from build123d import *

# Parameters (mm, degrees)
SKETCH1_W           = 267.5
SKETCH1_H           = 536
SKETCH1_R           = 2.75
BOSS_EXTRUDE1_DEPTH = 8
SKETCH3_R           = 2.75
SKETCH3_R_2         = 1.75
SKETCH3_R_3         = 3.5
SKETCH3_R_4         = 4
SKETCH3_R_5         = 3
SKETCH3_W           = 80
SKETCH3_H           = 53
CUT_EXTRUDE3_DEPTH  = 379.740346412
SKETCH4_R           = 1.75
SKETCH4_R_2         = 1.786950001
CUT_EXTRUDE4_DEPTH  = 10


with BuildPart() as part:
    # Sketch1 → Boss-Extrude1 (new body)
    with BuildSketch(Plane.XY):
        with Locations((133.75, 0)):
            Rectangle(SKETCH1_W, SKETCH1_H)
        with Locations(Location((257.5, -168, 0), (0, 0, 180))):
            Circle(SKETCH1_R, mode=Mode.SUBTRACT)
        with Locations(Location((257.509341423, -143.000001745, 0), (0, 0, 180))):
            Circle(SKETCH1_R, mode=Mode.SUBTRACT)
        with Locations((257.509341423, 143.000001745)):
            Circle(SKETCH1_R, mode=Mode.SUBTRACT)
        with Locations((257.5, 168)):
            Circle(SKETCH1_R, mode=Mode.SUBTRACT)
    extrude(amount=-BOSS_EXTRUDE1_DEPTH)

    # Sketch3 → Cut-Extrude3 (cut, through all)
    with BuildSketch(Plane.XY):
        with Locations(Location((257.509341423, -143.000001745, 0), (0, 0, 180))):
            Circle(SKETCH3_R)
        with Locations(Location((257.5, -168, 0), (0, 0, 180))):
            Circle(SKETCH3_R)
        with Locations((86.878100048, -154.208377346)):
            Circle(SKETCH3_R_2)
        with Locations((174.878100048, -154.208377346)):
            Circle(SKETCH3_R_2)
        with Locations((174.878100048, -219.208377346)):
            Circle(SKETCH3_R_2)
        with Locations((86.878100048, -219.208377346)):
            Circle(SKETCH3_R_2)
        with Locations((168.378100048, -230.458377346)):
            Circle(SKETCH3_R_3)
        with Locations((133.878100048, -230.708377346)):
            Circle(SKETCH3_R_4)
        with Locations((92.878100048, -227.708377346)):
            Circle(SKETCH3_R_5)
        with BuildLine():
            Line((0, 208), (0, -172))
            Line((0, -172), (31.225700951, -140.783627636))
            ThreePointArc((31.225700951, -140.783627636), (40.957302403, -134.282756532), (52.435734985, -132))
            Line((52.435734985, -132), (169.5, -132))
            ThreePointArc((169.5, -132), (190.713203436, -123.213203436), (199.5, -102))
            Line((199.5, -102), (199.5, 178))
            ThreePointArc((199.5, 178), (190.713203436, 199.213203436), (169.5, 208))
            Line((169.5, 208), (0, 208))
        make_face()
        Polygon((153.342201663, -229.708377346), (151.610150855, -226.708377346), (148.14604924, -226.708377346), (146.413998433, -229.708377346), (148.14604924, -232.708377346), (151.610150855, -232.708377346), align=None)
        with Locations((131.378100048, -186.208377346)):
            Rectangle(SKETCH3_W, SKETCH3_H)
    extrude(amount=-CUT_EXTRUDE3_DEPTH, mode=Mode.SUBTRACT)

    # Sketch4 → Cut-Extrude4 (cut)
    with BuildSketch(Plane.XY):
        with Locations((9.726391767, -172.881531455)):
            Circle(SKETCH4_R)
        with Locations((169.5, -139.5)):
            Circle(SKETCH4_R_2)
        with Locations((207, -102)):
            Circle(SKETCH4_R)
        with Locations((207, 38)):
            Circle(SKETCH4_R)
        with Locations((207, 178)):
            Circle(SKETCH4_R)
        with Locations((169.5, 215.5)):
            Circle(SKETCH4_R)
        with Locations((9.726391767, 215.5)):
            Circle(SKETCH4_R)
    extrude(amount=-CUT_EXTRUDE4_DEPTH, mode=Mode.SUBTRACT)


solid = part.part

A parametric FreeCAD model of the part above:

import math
import FreeCAD as App
import Part
import Sketcher
Q = App.Units.Quantity

doc = App.newDocument("Part")
body = doc.addObject("PartDesign::Body", "Body")

# Sketch on XY plane
sketch1 = body.newObject("Sketcher::SketchObject", "Sketch")
sketch1.AttachmentSupport = (doc.getObject("XY_Plane"), [""])
sketch1.MapMode = "FlatFace"
sketch1.addGeometry(Part.LineSegment(App.Vector(0, 268, 0), App.Vector(0, -268, 0)), False)
sketch1.addGeometry(Part.LineSegment(App.Vector(0, -268, 0), App.Vector(267.5, -268, 0)), False)
sketch1.addGeometry(Part.LineSegment(App.Vector(267.5, -268, 0), App.Vector(267.5, 268, 0)), False)
sketch1.addGeometry(Part.LineSegment(App.Vector(267.5, 268, 0), App.Vector(0, 268, 0)), False)
sketch1.addGeometry(Part.Circle(App.Vector(257.5, -168, 0), App.Vector(0, 0, 1), 2.8), False)
sketch1.addGeometry(Part.Circle(App.Vector(257.5, -143, 0), App.Vector(0, 0, 1), 2.8), False)
sketch1.addGeometry(Part.Circle(App.Vector(257.5, 168, 0), App.Vector(0, 0, 1), 2.8), False)
sketch1.addGeometry(Part.Circle(App.Vector(257.5, 143, 0), App.Vector(0, 0, 1), 2.8), False)
sketch1.addConstraint(Sketcher.Constraint("Coincident", 0, 2, 1, 1))
sketch1.addConstraint(Sketcher.Constraint("Coincident", 1, 2, 2, 1))
sketch1.addConstraint(Sketcher.Constraint("Coincident", 2, 2, 3, 1))
sketch1.addConstraint(Sketcher.Constraint("Coincident", 3, 2, 0, 1))
sketch1.addConstraint(Sketcher.Constraint("Vertical", 0))
sketch1.addConstraint(Sketcher.Constraint("Horizontal", 1))
sketch1.addConstraint(Sketcher.Constraint("Vertical", 2))
sketch1.addConstraint(Sketcher.Constraint("Horizontal", 3))
sketch1.addConstraint(Sketcher.Constraint("Equal", 4, 5))
sketch1.addConstraint(Sketcher.Constraint("Equal", 5, 6))
sketch1.addConstraint(Sketcher.Constraint("Equal", 6, 7))
sketch1.addConstraint(Sketcher.Constraint("Symmetric", 0, 2, 3, 2, -1, 1))
sketch1.addConstraint(Sketcher.Constraint("Symmetric", 4, 3, 6, 3, -1))
sketch1.addConstraint(Sketcher.Constraint("Symmetric", 5, 3, 7, 3, -1))
sketch1.addConstraint(Sketcher.Constraint("Diameter", 4, 5.5))
sketch1.addConstraint(Sketcher.Constraint("DistanceY", 0, 2, 0, 1, 536.0))
sketch1.addConstraint(Sketcher.Constraint("DistanceX", 1, 1, 1, 2, 267.5))
sketch1.addConstraint(Sketcher.Constraint("DistanceY", 4, 3, -1, 1, 168.0))
sketch1.addConstraint(Sketcher.Constraint("DistanceY", 5, 3, -1, 1, 143.000002))
sketch1.addConstraint(Sketcher.Constraint("DistanceX", 4, 3, 1, 2, 10.0))
sketch1.addConstraint(Sketcher.Constraint("DistanceX", -1, 1, 5, 3, 257.509341))
pad1 = body.newObject("PartDesign::Pad", "Pad")
pad1.Profile = sketch1
pad1.Length = 8
pad1.Reversed = True

# Sketch on XY plane
sketch2 = body.newObject("Sketcher::SketchObject", "Sketch001")
sketch2.AttachmentSupport = (doc.getObject("XY_Plane"), [""])
sketch2.MapMode = "FlatFace"
sketch2.addGeometry(Part.Circle(App.Vector(257.5, -143, 0), App.Vector(0, 0, 1), 2.8), False)
sketch2.addGeometry(Part.Circle(App.Vector(257.5, -168, 0), App.Vector(0, 0, 1), 2.8), False)
sketch2.addGeometry(Part.Circle(App.Vector(86.9, -154.2, 0), App.Vector(0, 0, 1), 1.8), False)
sketch2.addGeometry(Part.Circle(App.Vector(174.9, -154.2, 0), App.Vector(0, 0, 1), 1.8), False)
sketch2.addGeometry(Part.Circle(App.Vector(174.9, -219.2, 0), App.Vector(0, 0, 1), 1.8), False)
sketch2.addGeometry(Part.Circle(App.Vector(86.9, -219.2, 0), App.Vector(0, 0, 1), 1.8), False)
sketch2.addGeometry(Part.Circle(App.Vector(168.4, -230.5, 0), App.Vector(0, 0, 1), 3.5), False)
sketch2.addGeometry(Part.Circle(App.Vector(133.9, -230.7, 0), App.Vector(0, 0, 1), 4), False)
sketch2.addGeometry(Part.Circle(App.Vector(92.9, -227.7, 0), App.Vector(0, 0, 1), 3), False)
sketch2.addGeometry(Part.LineSegment(App.Vector(0, 208, 0), App.Vector(0, -172, 0)), False)
sketch2.addGeometry(Part.LineSegment(App.Vector(0, -172, 0), App.Vector(31.2, -140.8, 0)), False)
sketch2.addGeometry(Part.ArcOfCircle(Part.Circle(App.Vector(52.4, -162, 0), App.Vector(0, 0, 1), 30), math.radians(90), math.radians(135)), False)
sketch2.addGeometry(Part.LineSegment(App.Vector(52.4, -132, 0), App.Vector(169.5, -132, 0)), False)
sketch2.addGeometry(Part.ArcOfCircle(Part.Circle(App.Vector(169.5, -102, 0), App.Vector(0, 0, 1), 30), math.radians(-90), math.radians(0)), False)
sketch2.addGeometry(Part.LineSegment(App.Vector(199.5, -102, 0), App.Vector(199.5, 178, 0)), False)
sketch2.addGeometry(Part.ArcOfCircle(Part.Circle(App.Vector(169.5, 178, 0), App.Vector(0, 0, 1), 30), math.radians(0), math.radians(90)), False)
sketch2.addGeometry(Part.LineSegment(App.Vector(169.5, 208, 0), App.Vector(0, 208, 0)), False)
sketch2.addGeometry(Part.LineSegment(App.Vector(153.3, -229.7, 0), App.Vector(151.6, -226.7, 0)), False)
sketch2.addGeometry(Part.LineSegment(App.Vector(151.6, -226.7, 0), App.Vector(148.1, -226.7, 0)), False)
sketch2.addGeometry(Part.LineSegment(App.Vector(148.1, -226.7, 0), App.Vector(146.4, -229.7, 0)), False)
sketch2.addGeometry(Part.LineSegment(App.Vector(146.4, -229.7, 0), App.Vector(148.1, -232.7, 0)), False)
sketch2.addGeometry(Part.LineSegment(App.Vector(148.1, -232.7, 0), App.Vector(151.6, -232.7, 0)), False)
sketch2.addGeometry(Part.LineSegment(App.Vector(151.6, -232.7, 0), App.Vector(153.3, -229.7, 0)), False)
sketch2.addGeometry(Part.LineSegment(App.Vector(91.4, -159.7, 0), App.Vector(91.4, -212.7, 0)), False)
sketch2.addGeometry(Part.LineSegment(App.Vector(91.4, -212.7, 0), App.Vector(171.4, -212.7, 0)), False)
sketch2.addGeometry(Part.LineSegment(App.Vector(171.4, -212.7, 0), App.Vector(171.4, -159.7, 0)), False)
sketch2.addGeometry(Part.LineSegment(App.Vector(171.4, -159.7, 0), App.Vector(91.4, -159.7, 0)), False)
sketch2.addConstraint(Sketcher.Constraint("Coincident", 9, 2, 10, 1))
sketch2.addConstraint(Sketcher.Constraint("Tangent", 10, 2, 11, 2))
sketch2.addConstraint(Sketcher.Constraint("Tangent", 11, 1, 12, 1))
sketch2.addConstraint(Sketcher.Constraint("Tangent", 12, 2, 13, 1))
sketch2.addConstraint(Sketcher.Constraint("Tangent", 13, 2, 14, 1))
sketch2.addConstraint(Sketcher.Constraint("Tangent", 14, 2, 15, 1))
sketch2.addConstraint(Sketcher.Constraint("Tangent", 15, 2, 16, 1))
sketch2.addConstraint(Sketcher.Constraint("Coincident", 16, 2, 9, 1))
sketch2.addConstraint(Sketcher.Constraint("Coincident", 17, 2, 18, 1))
sketch2.addConstraint(Sketcher.Constraint("Coincident", 18, 2, 19, 1))
sketch2.addConstraint(Sketcher.Constraint("Coincident", 19, 2, 20, 1))
sketch2.addConstraint(Sketcher.Constraint("Coincident", 20, 2, 21, 1))
sketch2.addConstraint(Sketcher.Constraint("Coincident", 21, 2, 22, 1))
sketch2.addConstraint(Sketcher.Constraint("Coincident", 22, 2, 17, 1))
sketch2.addConstraint(Sketcher.Constraint("Coincident", 23, 2, 24, 1))
sketch2.addConstraint(Sketcher.Constraint("Coincident", 24, 2, 25, 1))
sketch2.addConstraint(Sketcher.Constraint("Coincident", 25, 2, 26, 1))
sketch2.addConstraint(Sketcher.Constraint("Coincident", 26, 2, 23, 1))
sketch2.addConstraint(Sketcher.Constraint("Vertical", 9))
sketch2.addConstraint(Sketcher.Constraint("Horizontal", 12))
sketch2.addConstraint(Sketcher.Constraint("Vertical", 14))
sketch2.addConstraint(Sketcher.Constraint("Horizontal", 16))
sketch2.addConstraint(Sketcher.Constraint("Horizontal", 18))
sketch2.addConstraint(Sketcher.Constraint("Horizontal", 21))
sketch2.addConstraint(Sketcher.Constraint("Vertical", 23))
sketch2.addConstraint(Sketcher.Constraint("Horizontal", 24))
sketch2.addConstraint(Sketcher.Constraint("Vertical", 25))
sketch2.addConstraint(Sketcher.Constraint("Horizontal", 26))
sketch2.addConstraint(Sketcher.Constraint("Equal", 0, 1))
sketch2.addConstraint(Sketcher.Constraint("Equal", 2, 3))
sketch2.addConstraint(Sketcher.Constraint("Equal", 3, 4))
sketch2.addConstraint(Sketcher.Constraint("Equal", 4, 5))
sketch2.addConstraint(Sketcher.Constraint("Equal", 11, 13))
sketch2.addConstraint(Sketcher.Constraint("Equal", 13, 15))
sketch2.addConstraint(Sketcher.Constraint("PointOnObject", 9, 2, -2))
sketch2.addConstraint(Sketcher.Constraint("Parallel", 17, 20))
sketch2.addConstraint(Sketcher.Constraint("Parallel", 19, 22))
sketch2.addConstraint(Sketcher.Constraint("Horizontal", 2, 3, 3, 3))
sketch2.addConstraint(Sketcher.Constraint("Horizontal", 4, 3, 5, 3))
sketch2.addConstraint(Sketcher.Constraint("Horizontal", 19, 2, 22, 2))
sketch2.addConstraint(Sketcher.Constraint("Vertical", 3, 3, 4, 3))
sketch2.addConstraint(Sketcher.Constraint("Vertical", 2, 3, 5, 3))
sketch2.addConstraint(Sketcher.Constraint("Vertical", 18, 2, 20, 2))
sketch2.addConstraint(Sketcher.Constraint("Vertical", 17, 2, 21, 2))
sketch2.addConstraint(Sketcher.Constraint("Diameter", 6, 7.0))
sketch2.addConstraint(Sketcher.Constraint("Diameter", 7, 8.0))
sketch2.addConstraint(Sketcher.Constraint("Diameter", 8, 6.0))
sketch2.addConstraint(Sketcher.Constraint("Radius", 11, 30.0))
sketch2.addConstraint(Sketcher.Constraint("Diameter", 0, 5.5))
sketch2.addConstraint(Sketcher.Constraint("Diameter", 2, 3.5))
sketch2.addConstraint(Sketcher.Constraint("DistanceX", 24, 1, 24, 2, 80.0))
sketch2.addConstraint(Sketcher.Constraint("DistanceY", 9, 2, 9, 1, 380.0))
sketch2.addConstraint(Sketcher.Constraint("DistanceY", 14, 1, 14, 2, 280.0))
sketch2.addConstraint(Sketcher.Constraint("DistanceY", 23, 2, 23, 1, 53.0))
sketch2.addConstraint(Sketcher.Constraint("Angle", 17, Q("120 deg")))
sketch2.addConstraint(Sketcher.Constraint("DistanceX", 16, 2, 16, 1, 169.5))
sketch2.addConstraint(Sketcher.Constraint("DistanceY", 0, 3, -1, 1, 143.000002))
sketch2.addConstraint(Sketcher.Constraint("DistanceY", 1, 3, -1, 1, 168.0))
sketch2.addConstraint(Sketcher.Constraint("DistanceY", 11, 3, -1, 1, 162.0))
sketch2.addConstraint(Sketcher.Constraint("DistanceX", 2, 3, 3, 3, 88.0))
sketch2.addConstraint(Sketcher.Constraint("DistanceY", 4, 3, 3, 3, 65.0))
sketch2.addConstraint(Sketcher.Constraint("DistanceX", 7, 3, 4, 3, 41.0))
sketch2.addConstraint(Sketcher.Constraint("DistanceX", 5, 3, 8, 3, 6.0))
sketch2.addConstraint(Sketcher.Constraint("DistanceY", 7, 3, 8, 3, 3.0))
sketch2.addConstraint(Sketcher.Constraint("DistanceX", 13, 3, 1, 3, 88.0))
sketch2.addConstraint(Sketcher.Constraint("DistanceY", 7, 3, 17, 2, 4.0))
sketch2.addConstraint(Sketcher.Constraint("DistanceY", 19, 2, 18, 2, 3.0))
sketch2.addConstraint(Sketcher.Constraint("DistanceY", 8, 3, 23, 2, 15.0))
sketch2.addConstraint(Sketcher.Constraint("DistanceX", 6, 3, 24, 2, 3.0))
sketch2.addConstraint(Sketcher.Constraint("DistanceX", 6, 3, 4, 3, 6.5))
sketch2.addConstraint(Sketcher.Constraint("DistanceY", 7, 3, 4, 3, 11.5))
sketch2.addConstraint(Sketcher.Constraint("DistanceY", 6, 3, 4, 3, 11.25))
sketch2.addConstraint(Sketcher.Constraint("DistanceX", 18, 2, 18, 1, 3.464102))
sketch2.addConstraint(Sketcher.Constraint("DistanceX", -1, 1, 19, 2, 146.413998))
sketch2.addConstraint(Sketcher.Constraint("DistanceX", -1, 1, 2, 3, 86.8781))
sketch2.addConstraint(Sketcher.Constraint("DistanceX", -1, 1, 10, 2, 31.225701))
sketch2.addConstraint(Sketcher.Constraint("DistanceX", -1, 1, 0, 3, 257.509341))
sketch2.addConstraint(Sketcher.Constraint("DistanceY", 2, 3, 10, 2, 13.42475))
pocket1 = body.newObject("PartDesign::Pocket", "Pocket")
pocket1.Profile = sketch2
pocket1.Type = "ThroughAll"

# Sketch on XY plane
sketch3 = body.newObject("Sketcher::SketchObject", "Sketch002")
sketch3.AttachmentSupport = (doc.getObject("XY_Plane"), [""])
sketch3.MapMode = "FlatFace"
sketch3.addGeometry(Part.Circle(App.Vector(9.7, -172.9, 0), App.Vector(0, 0, 1), 1.8), False)
sketch3.addGeometry(Part.Circle(App.Vector(169.5, -139.5, 0), App.Vector(0, 0, 1), 1.8), False)
sketch3.addGeometry(Part.Circle(App.Vector(207, -102, 0), App.Vector(0, 0, 1), 1.8), False)
sketch3.addGeometry(Part.Circle(App.Vector(207, 38, 0), App.Vector(0, 0, 1), 1.8), False)
sketch3.addGeometry(Part.Circle(App.Vector(207, 178, 0), App.Vector(0, 0, 1), 1.8), False)
sketch3.addGeometry(Part.Circle(App.Vector(169.5, 215.5, 0), App.Vector(0, 0, 1), 1.8), False)
sketch3.addGeometry(Part.Circle(App.Vector(9.7, 215.5, 0), App.Vector(0, 0, 1), 1.8), False)
sketch3.addConstraint(Sketcher.Constraint("Equal", 0, 2))
sketch3.addConstraint(Sketcher.Constraint("Equal", 2, 3))
sketch3.addConstraint(Sketcher.Constraint("Equal", 3, 4))
sketch3.addConstraint(Sketcher.Constraint("Equal", 4, 5))
sketch3.addConstraint(Sketcher.Constraint("Equal", 5, 6))
sketch3.addConstraint(Sketcher.Constraint("Horizontal", 5, 3, 6, 3))
sketch3.addConstraint(Sketcher.Constraint("Vertical", 2, 3, 3, 3))
sketch3.addConstraint(Sketcher.Constraint("Vertical", 3, 3, 4, 3))
sketch3.addConstraint(Sketcher.Constraint("Vertical", 1, 3, 5, 3))
sketch3.addConstraint(Sketcher.Constraint("Vertical", 0, 3, 6, 3))
sketch3.addConstraint(Sketcher.Constraint("Diameter", 0, 3.5))
sketch3.addConstraint(Sketcher.Constraint("DistanceX", -1, 1, 2, 3, 207.0))
sketch3.addConstraint(Sketcher.Constraint("DistanceY", 2, 3, -1, 1, 102.0))
sketch3.addConstraint(Sketcher.Constraint("DistanceY", -1, 1, 3, 3, 38.0))
sketch3.addConstraint(Sketcher.Constraint("DistanceY", -1, 1, 4, 3, 178.0))
sketch3.addConstraint(Sketcher.Constraint("DistanceY", 1, 3, 5, 3, 355.0))
sketch3.addConstraint(Sketcher.Constraint("Diameter", 1, 3.5739))
sketch3.addConstraint(Sketcher.Constraint("DistanceX", -1, 1, 1, 3, 169.5))
sketch3.addConstraint(Sketcher.Constraint("DistanceY", 1, 3, -1, 1, 139.5))
sketch3.addConstraint(Sketcher.Constraint("DistanceX", -1, 1, 0, 3, 9.726392))
sketch3.addConstraint(Sketcher.Constraint("DistanceY", 0, 3, -1, 1, 172.881531))
pocket2 = body.newObject("PartDesign::Pocket", "Pocket001")
pocket2.Profile = sketch3
pocket2.Length = 10

doc.recompute()
